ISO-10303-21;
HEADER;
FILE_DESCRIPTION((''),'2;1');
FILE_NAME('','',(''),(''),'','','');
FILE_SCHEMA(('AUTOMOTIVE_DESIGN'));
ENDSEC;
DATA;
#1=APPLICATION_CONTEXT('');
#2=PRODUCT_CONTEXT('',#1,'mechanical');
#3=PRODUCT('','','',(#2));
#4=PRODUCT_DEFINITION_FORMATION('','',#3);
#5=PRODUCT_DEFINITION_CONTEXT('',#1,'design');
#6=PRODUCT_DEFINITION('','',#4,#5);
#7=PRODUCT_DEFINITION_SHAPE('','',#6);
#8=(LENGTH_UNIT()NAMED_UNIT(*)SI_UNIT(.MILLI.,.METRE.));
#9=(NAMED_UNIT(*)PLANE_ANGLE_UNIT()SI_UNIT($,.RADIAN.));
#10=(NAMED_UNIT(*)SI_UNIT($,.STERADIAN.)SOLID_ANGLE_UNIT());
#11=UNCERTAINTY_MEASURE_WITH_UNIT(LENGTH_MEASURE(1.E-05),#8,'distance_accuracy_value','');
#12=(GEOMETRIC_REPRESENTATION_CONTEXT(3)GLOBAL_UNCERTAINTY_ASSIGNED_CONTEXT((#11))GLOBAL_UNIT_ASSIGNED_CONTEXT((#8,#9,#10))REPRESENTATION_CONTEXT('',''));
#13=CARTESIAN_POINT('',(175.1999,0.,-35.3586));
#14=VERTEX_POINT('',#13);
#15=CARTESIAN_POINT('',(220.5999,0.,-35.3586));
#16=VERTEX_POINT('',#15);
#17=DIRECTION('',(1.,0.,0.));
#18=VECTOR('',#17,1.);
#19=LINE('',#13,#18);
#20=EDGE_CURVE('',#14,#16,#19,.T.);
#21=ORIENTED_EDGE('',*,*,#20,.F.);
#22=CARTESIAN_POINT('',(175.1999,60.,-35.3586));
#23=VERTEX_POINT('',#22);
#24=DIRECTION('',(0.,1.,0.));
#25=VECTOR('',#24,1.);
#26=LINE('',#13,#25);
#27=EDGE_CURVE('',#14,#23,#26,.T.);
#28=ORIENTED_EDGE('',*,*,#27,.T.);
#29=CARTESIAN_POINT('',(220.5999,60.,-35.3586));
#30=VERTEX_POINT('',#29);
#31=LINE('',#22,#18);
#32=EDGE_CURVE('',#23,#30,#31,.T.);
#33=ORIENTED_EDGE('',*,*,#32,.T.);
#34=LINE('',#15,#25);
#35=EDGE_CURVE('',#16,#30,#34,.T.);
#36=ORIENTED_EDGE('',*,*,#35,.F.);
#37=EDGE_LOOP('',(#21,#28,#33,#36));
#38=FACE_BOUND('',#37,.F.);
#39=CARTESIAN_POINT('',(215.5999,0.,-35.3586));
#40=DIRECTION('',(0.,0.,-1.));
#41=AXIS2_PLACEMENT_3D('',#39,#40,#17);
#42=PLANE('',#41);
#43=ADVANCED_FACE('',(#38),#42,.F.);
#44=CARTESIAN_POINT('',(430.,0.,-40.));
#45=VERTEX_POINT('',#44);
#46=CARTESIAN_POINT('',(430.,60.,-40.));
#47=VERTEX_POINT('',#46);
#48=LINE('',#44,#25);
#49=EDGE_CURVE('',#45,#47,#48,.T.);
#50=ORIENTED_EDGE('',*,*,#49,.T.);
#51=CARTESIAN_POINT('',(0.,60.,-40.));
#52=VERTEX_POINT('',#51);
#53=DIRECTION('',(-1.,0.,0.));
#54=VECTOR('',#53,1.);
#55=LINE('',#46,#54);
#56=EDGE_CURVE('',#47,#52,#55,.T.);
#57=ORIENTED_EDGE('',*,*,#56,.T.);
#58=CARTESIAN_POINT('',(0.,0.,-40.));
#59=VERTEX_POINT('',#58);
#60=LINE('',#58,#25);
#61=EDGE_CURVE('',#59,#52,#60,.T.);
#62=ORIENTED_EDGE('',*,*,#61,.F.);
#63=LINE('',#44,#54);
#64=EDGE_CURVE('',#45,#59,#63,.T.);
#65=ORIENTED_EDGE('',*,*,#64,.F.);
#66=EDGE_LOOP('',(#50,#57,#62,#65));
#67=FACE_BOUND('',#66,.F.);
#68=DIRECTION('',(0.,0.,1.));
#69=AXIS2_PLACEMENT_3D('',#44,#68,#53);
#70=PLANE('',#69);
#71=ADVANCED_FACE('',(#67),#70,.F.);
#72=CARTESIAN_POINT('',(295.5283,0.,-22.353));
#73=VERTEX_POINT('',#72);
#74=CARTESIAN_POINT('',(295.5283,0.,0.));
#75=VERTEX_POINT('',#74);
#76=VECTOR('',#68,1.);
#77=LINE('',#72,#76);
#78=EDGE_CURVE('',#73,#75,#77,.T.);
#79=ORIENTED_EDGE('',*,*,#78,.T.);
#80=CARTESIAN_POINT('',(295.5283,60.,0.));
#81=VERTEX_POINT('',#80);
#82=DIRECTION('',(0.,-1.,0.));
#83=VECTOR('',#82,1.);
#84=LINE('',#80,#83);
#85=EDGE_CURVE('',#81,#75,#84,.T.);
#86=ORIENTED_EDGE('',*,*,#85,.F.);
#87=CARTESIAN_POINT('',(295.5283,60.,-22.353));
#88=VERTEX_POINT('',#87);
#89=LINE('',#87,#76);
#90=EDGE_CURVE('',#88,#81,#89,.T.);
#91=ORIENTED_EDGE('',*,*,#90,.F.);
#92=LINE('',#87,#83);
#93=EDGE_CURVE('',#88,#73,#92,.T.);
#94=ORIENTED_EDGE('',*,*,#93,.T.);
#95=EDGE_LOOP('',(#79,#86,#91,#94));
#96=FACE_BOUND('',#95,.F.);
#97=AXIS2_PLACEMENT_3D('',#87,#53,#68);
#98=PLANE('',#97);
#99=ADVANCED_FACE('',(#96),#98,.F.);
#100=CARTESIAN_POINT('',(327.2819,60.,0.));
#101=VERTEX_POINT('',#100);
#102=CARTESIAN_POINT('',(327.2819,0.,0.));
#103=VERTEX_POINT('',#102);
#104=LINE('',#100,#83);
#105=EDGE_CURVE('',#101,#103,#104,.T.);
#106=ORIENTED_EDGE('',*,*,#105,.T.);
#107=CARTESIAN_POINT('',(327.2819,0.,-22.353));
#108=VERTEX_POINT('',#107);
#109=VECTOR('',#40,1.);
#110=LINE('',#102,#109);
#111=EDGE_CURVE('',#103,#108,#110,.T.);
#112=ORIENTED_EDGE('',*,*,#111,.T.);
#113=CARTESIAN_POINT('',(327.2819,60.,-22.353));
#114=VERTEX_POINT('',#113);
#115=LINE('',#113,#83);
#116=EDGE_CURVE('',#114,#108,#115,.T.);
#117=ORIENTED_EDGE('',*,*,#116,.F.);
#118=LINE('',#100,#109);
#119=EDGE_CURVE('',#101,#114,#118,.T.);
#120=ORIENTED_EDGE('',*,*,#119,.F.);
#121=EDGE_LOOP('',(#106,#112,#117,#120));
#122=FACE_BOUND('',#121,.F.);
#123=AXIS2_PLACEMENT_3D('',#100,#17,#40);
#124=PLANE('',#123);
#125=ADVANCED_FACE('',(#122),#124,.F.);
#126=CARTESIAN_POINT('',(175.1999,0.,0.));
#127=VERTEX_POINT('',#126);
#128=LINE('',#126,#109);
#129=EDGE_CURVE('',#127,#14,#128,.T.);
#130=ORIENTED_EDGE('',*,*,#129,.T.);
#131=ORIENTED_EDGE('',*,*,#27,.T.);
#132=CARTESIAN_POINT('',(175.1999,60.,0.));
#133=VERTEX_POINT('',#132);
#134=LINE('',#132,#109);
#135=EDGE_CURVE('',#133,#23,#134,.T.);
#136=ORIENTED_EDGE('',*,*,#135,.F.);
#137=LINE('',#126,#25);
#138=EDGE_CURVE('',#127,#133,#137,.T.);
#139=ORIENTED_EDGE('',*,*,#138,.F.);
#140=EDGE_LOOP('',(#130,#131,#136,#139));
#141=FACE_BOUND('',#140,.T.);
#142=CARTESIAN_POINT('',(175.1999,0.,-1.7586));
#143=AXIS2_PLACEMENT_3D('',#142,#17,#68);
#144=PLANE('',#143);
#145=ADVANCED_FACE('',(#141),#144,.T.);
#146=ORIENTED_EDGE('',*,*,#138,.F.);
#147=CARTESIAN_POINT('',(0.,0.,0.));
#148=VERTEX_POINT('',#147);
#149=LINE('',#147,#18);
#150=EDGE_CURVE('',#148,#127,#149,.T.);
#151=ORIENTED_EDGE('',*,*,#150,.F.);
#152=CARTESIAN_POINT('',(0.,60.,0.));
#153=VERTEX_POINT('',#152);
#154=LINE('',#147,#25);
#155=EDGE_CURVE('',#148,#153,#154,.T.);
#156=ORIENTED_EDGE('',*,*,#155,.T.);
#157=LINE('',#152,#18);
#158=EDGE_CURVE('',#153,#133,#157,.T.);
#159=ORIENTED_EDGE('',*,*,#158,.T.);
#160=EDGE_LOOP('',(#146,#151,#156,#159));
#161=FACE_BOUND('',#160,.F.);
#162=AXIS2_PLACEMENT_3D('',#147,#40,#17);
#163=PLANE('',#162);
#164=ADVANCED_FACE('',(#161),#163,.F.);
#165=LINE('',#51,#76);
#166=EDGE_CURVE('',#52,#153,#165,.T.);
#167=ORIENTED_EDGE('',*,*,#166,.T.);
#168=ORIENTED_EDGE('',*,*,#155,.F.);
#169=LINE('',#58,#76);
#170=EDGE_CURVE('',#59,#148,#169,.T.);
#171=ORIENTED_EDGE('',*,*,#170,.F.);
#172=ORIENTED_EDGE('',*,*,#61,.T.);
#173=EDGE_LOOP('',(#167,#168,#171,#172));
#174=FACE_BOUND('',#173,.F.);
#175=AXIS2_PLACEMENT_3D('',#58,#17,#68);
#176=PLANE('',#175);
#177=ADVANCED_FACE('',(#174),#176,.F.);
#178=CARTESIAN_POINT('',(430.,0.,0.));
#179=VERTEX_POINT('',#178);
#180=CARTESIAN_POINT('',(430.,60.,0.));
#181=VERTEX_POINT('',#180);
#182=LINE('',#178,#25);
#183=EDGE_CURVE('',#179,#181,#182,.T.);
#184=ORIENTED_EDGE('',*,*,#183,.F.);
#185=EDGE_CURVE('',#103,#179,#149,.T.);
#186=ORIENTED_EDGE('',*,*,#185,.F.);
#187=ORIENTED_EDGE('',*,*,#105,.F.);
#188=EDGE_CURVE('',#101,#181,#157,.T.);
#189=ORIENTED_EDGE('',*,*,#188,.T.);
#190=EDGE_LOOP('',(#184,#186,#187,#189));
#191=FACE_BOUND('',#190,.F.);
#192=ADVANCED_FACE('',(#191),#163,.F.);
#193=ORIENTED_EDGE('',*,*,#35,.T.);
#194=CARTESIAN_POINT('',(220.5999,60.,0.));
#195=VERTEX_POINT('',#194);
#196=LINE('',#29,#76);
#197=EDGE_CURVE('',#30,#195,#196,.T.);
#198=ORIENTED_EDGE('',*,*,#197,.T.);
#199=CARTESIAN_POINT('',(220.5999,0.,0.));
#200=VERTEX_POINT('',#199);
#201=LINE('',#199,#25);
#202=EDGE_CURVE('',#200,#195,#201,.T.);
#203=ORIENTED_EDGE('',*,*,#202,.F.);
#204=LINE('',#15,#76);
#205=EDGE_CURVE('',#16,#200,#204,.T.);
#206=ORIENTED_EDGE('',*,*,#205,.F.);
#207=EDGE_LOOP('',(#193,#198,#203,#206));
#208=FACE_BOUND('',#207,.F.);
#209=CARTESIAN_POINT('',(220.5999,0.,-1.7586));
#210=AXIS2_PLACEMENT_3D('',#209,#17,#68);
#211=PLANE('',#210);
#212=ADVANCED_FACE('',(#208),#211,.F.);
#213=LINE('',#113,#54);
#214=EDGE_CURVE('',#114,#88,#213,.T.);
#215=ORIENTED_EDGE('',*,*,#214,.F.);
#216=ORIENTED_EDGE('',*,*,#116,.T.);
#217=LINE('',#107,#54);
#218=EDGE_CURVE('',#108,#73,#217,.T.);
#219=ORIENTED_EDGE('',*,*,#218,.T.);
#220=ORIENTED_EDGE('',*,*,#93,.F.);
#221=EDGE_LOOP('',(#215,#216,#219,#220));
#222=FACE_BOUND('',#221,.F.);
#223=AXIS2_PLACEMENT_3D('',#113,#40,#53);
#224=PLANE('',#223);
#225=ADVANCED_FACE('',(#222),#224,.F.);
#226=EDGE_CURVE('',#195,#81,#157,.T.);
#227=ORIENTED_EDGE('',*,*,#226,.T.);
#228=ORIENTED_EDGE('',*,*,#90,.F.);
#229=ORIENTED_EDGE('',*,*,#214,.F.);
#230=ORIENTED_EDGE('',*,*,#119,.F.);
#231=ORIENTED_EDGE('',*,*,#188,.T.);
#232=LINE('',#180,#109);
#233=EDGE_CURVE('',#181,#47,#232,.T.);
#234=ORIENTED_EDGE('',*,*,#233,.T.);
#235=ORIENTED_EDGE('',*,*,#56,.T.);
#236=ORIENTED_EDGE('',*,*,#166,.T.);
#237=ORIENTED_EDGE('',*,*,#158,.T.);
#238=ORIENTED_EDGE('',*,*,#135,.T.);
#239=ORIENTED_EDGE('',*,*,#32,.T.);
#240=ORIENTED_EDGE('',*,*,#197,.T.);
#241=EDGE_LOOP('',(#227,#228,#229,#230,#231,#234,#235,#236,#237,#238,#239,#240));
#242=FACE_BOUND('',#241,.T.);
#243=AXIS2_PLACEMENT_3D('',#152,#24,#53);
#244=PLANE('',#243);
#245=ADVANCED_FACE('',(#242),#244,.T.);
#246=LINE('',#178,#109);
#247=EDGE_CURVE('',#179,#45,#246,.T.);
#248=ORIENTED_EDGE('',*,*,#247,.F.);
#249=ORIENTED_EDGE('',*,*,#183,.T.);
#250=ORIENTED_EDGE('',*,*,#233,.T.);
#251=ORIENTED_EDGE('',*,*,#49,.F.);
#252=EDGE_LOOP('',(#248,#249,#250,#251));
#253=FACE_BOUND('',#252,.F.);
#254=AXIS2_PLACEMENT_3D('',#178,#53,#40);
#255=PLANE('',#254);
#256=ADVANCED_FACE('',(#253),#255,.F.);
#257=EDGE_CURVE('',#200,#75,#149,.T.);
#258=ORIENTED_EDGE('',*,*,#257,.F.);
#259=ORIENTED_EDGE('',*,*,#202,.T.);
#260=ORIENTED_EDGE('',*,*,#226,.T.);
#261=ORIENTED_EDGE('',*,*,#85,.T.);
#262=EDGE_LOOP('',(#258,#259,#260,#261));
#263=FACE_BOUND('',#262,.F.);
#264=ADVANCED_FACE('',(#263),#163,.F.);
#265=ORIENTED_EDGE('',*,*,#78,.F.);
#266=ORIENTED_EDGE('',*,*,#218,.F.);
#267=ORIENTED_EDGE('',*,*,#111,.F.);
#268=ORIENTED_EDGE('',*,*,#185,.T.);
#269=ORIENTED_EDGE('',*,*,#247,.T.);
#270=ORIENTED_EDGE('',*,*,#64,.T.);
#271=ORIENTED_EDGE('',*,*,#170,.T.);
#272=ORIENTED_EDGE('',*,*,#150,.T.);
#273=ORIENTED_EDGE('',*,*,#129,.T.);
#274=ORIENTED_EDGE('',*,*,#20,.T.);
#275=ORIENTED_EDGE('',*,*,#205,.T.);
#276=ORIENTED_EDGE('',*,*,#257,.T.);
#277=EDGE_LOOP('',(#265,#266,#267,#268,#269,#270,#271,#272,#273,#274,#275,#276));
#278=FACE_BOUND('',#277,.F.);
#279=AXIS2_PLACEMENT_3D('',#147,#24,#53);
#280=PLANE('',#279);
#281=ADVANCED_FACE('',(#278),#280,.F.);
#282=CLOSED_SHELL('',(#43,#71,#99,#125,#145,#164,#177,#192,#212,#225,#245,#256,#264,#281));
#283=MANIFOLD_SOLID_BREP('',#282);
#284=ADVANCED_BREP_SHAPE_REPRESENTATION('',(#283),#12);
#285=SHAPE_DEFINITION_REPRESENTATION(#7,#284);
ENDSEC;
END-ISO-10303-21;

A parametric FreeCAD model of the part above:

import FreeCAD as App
import Part
import Sketcher
from FreeCAD import Vector
Q = App.Units.Quantity


def add_polygon(sketch, points):
    """Adds a closed chain of lines whose ends are joined by coincident constraints."""
    first, n = sketch.GeometryCount, len(points)
    for a, b in zip(points, points[1:] + points[:1]):
        sketch.addGeometry(Part.LineSegment(App.Vector(*a, 0), App.Vector(*b, 0)), False)
    for i in range(n):
        sketch.addConstraint(Sketcher.Constraint("Coincident", first + i, 2, first + (i + 1) % n, 1))

doc = App.newDocument("Part")
params = doc.addObject("Spreadsheet::Sheet", "Params")
for row, (alias, value) in enumerate([
    ("sketch1_width", "430 mm"),
    ("sketch1_height", "40 mm"),
    ("pad1_length", "60 mm"),
    ("sketch2_width", "45.4 mm"),
    ("pocket1_length", "60 mm"),
    ("pocket2_length", "60 mm"),
], start=1):
    params.set(f"A{row}", alias)
    params.set(f"B{row}", "=" + value)
    params.setAlias(f"B{row}", alias)

body = doc.addObject("PartDesign::Body", "Body")

# Sketch on XZ plane
sketch1 = doc.addObject("Sketcher::SketchObject", "Sketch")
body.addObject(sketch1)
sketch1.AttachmentSupport = (doc.XZ_Plane, [""])
sketch1.MapMode = "FlatFace"
add_polygon(sketch1, [(0, -40), (0, 0), (430, 0), (430, -40)])  # lines 0-3
sketch1.addConstraint(Sketcher.Constraint("Vertical", 0))
sketch1.addConstraint(Sketcher.Constraint("Horizontal", 1))
sketch1.addConstraint(Sketcher.Constraint("Vertical", 2))
sketch1.addConstraint(Sketcher.Constraint("Horizontal", 3))
sketch1.addConstraint(Sketcher.Constraint("Coincident", 0, 2, -1, 1))
sketch1.addConstraint(Sketcher.Constraint("DistanceX", 1, 1, 1, 2, Q("430 mm")))
sketch1.addConstraint(Sketcher.Constraint("DistanceY", 0, 1, 0, 2, Q("40 mm")))
sketch1.setExpression("Constraints[9]", "Params.sketch1_width")
sketch1.setExpression("Constraints[10]", "Params.sketch1_height")
pad1 = doc.addObject("PartDesign::Pad", "Pad")
body.addObject(pad1)
pad1.Profile = sketch1
pad1.setExpression("Length", "Params.pad1_length")
pad1.Reversed = True

# Sketch on XZ plane
sketch2 = doc.addObject("Sketcher::SketchObject", "Sketch001")
body.addObject(sketch2)
sketch2.AttachmentSupport = (doc.XZ_Plane, [""])
sketch2.MapMode = "FlatFace"
add_polygon(sketch2, [(175, 0), (175, -35), (221, -35), (221, 0)])  # lines 0-3
sketch2.addConstraint(Sketcher.Constraint("Vertical", 0))
sketch2.addConstraint(Sketcher.Constraint("Horizontal", 1))
sketch2.addConstraint(Sketcher.Constraint("Vertical", 2))
sketch2.addConstraint(Sketcher.Constraint("Horizontal", 3))
sketch2.addConstraint(Sketcher.Constraint("PointOnObject", 2, 2, -1))
sketch2.addConstraint(Sketcher.Constraint("DistanceX", 1, 1, 1, 2, Q("45.4 mm")))
sketch2.addConstraint(Sketcher.Constraint("DistanceX", -1, 1, 0, 2, Q("175.2 mm")))
sketch2.addConstraint(Sketcher.Constraint("DistanceY", 0, 2, 0, 1, Q("35.3586 mm")))
sketch2.setExpression("Constraints[9]", "Params.sketch2_width")
pocket1 = doc.addObject("PartDesign::Pocket", "Pocket")
body.addObject(pocket1)
pocket1.Profile = sketch2
pocket1.setExpression("Length", "Params.pocket1_length")

# Sketch on XZ plane
sketch3 = doc.addObject("Sketcher::SketchObject", "Sketch002")
body.addObject(sketch3)
sketch3.AttachmentSupport = (doc.XZ_Plane, [""])
sketch3.MapMode = "FlatFace"
sketch3.AttachmentOffset = App.Placement(Vector(0, 0, -60), App.Rotation())
add_polygon(sketch3, [(296, -22), (296, 0), (327, 0), (327, -22)])  # lines 0-3
sketch3.addConstraint(Sketcher.Constraint("Vertical", 0))
sketch3.addConstraint(Sketcher.Constraint("Horizontal", 1))
sketch3.addConstraint(Sketcher.Constraint("Vertical", 2))
sketch3.addConstraint(Sketcher.Constraint("Horizontal", 3))
sketch3.addConstraint(Sketcher.Constraint("PointOnObject", 0, 2, -1))
sketch3.addConstraint(Sketcher.Constraint("DistanceY", 0, 1, 0, 2, Q("22.353 mm")))
sketch3.addConstraint(Sketcher.Constraint("DistanceX", 1, 1, 1, 2, Q("31.7536 mm")))
sketch3.addConstraint(Sketcher.Constraint("DistanceX", -1, 1, 1, 2, Q("327.282 mm")))
pocket2 = doc.addObject("PartDesign::Pocket", "Pocket001")
body.addObject(pocket2)
pocket2.Profile = sketch3
pocket2.setExpression("Length", "Params.pocket2_length")
pocket2.Reversed = True

doc.recompute()
